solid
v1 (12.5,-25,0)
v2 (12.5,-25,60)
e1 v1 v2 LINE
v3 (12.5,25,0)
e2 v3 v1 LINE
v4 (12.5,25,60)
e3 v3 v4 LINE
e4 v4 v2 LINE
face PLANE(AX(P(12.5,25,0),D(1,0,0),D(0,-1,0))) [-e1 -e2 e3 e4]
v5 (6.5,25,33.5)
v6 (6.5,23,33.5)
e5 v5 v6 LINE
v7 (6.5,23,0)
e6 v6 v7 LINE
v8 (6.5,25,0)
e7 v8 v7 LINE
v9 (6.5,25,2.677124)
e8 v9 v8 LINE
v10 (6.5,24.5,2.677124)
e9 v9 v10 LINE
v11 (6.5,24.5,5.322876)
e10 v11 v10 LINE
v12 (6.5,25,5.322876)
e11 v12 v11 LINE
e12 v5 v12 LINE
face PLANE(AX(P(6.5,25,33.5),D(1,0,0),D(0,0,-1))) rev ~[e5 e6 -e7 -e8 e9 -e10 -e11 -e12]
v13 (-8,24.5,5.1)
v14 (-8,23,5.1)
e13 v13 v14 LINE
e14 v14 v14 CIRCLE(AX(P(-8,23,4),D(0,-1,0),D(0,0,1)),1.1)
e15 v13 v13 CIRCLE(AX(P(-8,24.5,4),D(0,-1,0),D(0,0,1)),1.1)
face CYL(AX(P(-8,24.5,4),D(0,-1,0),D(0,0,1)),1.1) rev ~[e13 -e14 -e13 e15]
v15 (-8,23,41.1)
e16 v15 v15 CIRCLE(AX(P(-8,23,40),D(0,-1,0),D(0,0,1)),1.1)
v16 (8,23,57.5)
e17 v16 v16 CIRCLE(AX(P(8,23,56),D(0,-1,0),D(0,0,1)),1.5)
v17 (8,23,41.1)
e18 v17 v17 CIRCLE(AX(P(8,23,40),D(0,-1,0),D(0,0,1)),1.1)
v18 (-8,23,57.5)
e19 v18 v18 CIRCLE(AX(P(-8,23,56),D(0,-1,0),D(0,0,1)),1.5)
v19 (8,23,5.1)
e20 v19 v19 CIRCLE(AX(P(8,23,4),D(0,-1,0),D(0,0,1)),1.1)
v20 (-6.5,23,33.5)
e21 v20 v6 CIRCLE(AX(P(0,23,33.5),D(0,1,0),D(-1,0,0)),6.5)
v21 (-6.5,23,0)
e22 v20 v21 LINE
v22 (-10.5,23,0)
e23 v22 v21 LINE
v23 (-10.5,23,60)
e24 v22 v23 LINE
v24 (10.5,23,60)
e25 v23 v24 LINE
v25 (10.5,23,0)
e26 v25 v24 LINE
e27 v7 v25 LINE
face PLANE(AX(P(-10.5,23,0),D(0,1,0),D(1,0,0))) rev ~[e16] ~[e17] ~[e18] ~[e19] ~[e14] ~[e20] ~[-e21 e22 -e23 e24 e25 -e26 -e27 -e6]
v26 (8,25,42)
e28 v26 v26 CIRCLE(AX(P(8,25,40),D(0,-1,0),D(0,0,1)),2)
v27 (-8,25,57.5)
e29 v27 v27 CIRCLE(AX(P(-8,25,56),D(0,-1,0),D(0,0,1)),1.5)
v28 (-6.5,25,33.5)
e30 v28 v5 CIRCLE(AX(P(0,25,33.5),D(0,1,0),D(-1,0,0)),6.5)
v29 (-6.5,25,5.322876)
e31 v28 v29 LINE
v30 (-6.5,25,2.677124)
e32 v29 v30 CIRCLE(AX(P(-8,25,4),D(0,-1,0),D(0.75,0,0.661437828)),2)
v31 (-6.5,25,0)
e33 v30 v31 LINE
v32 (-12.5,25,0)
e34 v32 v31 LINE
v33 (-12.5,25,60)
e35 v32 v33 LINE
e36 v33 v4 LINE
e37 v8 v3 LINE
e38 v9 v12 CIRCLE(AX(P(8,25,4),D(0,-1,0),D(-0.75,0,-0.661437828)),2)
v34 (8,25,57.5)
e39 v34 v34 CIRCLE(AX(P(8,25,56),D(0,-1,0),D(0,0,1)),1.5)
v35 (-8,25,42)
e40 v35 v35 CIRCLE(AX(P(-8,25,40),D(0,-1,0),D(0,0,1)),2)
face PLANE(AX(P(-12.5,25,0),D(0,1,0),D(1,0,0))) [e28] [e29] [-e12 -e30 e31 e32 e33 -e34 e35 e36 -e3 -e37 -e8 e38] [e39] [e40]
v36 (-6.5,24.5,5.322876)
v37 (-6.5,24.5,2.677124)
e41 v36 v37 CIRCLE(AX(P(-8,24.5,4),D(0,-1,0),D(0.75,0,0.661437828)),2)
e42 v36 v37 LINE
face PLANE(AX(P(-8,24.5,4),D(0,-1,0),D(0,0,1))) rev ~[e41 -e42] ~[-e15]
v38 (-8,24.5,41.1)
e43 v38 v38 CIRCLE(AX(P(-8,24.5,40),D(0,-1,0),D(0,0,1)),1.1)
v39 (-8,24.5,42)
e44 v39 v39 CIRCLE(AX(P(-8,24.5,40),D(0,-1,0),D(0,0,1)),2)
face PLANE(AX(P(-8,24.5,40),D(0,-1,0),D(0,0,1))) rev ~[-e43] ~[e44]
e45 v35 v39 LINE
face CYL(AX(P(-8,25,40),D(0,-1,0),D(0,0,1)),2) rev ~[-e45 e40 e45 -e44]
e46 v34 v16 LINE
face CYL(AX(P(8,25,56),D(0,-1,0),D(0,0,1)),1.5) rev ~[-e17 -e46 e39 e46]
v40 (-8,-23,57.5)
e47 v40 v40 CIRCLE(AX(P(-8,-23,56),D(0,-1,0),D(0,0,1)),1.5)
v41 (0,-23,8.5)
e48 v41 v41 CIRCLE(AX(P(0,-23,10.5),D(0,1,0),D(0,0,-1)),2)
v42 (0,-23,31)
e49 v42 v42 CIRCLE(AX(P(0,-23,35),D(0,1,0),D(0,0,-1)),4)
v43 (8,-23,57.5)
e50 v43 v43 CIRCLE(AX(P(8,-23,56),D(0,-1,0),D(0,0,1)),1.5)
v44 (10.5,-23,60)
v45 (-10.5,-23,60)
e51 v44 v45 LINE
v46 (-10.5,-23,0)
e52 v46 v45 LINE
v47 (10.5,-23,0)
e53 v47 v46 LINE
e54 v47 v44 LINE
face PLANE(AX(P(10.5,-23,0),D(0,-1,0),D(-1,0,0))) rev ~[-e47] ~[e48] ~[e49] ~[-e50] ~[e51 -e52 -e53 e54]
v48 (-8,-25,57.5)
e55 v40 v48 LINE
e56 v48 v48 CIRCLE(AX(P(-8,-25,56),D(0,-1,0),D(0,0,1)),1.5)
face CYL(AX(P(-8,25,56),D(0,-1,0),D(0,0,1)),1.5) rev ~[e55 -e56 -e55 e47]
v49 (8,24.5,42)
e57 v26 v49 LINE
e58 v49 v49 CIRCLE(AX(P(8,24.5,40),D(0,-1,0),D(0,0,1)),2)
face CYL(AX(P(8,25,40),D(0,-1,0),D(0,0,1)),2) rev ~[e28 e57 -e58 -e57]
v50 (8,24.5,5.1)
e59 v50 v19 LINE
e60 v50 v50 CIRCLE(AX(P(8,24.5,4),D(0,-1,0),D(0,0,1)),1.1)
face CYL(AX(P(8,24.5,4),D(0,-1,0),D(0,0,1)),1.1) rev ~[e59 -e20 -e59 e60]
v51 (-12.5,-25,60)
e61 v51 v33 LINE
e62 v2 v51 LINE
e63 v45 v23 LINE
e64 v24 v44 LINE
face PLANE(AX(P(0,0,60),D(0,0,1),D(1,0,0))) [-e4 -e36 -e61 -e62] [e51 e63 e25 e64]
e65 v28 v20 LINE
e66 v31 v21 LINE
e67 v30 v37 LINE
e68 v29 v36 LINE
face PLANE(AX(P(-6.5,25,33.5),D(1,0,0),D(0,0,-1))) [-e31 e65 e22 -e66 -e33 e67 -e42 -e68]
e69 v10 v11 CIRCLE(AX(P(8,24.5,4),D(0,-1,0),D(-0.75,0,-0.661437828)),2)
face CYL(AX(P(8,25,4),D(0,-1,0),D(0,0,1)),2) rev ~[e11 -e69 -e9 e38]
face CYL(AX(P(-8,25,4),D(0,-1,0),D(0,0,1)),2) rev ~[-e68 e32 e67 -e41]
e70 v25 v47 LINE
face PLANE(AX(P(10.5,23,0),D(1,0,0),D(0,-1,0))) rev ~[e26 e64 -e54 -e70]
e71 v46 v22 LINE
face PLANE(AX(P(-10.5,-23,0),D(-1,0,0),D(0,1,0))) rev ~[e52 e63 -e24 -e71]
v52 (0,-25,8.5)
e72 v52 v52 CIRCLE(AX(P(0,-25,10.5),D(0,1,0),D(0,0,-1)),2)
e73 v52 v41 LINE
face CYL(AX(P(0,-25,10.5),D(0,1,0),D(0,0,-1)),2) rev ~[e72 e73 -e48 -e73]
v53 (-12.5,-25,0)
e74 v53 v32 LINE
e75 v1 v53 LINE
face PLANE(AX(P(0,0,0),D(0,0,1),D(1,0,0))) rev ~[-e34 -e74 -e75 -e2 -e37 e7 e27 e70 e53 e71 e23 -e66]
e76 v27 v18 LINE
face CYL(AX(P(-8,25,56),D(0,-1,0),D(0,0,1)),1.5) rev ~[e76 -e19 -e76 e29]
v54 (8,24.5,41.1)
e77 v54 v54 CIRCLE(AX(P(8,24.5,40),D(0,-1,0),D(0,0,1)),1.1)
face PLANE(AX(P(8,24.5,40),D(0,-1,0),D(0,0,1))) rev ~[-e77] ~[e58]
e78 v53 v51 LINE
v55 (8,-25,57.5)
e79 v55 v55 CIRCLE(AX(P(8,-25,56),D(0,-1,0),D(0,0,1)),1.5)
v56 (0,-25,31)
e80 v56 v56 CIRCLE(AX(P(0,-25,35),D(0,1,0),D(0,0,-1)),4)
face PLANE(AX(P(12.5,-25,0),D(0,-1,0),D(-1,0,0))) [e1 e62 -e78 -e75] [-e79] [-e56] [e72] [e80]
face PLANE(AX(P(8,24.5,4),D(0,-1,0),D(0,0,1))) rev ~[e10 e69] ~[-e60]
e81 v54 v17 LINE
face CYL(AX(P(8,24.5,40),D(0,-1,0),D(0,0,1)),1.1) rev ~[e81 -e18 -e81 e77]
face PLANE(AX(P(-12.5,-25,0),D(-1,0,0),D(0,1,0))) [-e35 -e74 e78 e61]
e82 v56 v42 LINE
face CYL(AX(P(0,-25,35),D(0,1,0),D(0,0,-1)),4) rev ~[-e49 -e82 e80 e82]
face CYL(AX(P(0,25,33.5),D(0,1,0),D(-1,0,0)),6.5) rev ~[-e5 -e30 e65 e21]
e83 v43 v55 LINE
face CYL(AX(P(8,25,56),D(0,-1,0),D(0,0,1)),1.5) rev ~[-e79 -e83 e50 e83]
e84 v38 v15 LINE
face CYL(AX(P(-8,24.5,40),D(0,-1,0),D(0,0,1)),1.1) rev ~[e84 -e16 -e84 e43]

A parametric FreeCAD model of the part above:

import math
import FreeCAD as App
import Part
import Sketcher

V = App.Vector

doc = App.newDocument("Part")
body = doc.addObject("PartDesign::Body", "Body")

sketch1 = body.newObject("Sketcher::SketchObject", "Sketch")
sketch1.AttachmentSupport = (doc.getObject("XY_Plane"), [""])
sketch1.MapMode = "FlatFace"
sketch1.addGeometry(Part.LineSegment(V(12, 25, 0), V(-12, 25, 0)), False)
sketch1.addGeometry(Part.LineSegment(V(-12, 25, 0), V(-12, -25, 0)), False)
sketch1.addGeometry(Part.LineSegment(V(-12, -25, 0), V(12, -25, 0)), False)
sketch1.addGeometry(Part.LineSegment(V(12, -25, 0), V(12, 25, 0)), False)
sketch1.addGeometry(Part.LineSegment(V(-10, -23, 0), V(-10, 23, 0)), False)
sketch1.addGeometry(Part.LineSegment(V(-10, 23, 0), V(10, 23, 0)), False)
sketch1.addGeometry(Part.LineSegment(V(10, 23, 0), V(10, -23, 0)), False)
sketch1.addGeometry(Part.LineSegment(V(10, -23, 0), V(-10, -23, 0)), False)
sketch1.addConstraint(Sketcher.Constraint("Coincident", 0, 2, 1, 1))
sketch1.addConstraint(Sketcher.Constraint("Coincident", 1, 2, 2, 1))
sketch1.addConstraint(Sketcher.Constraint("Coincident", 2, 2, 3, 1))
sketch1.addConstraint(Sketcher.Constraint("Coincident", 3, 2, 0, 1))
sketch1.addConstraint(Sketcher.Constraint("Coincident", 4, 2, 5, 1))
sketch1.addConstraint(Sketcher.Constraint("Coincident", 5, 2, 6, 1))
sketch1.addConstraint(Sketcher.Constraint("Coincident", 6, 2, 7, 1))
sketch1.addConstraint(Sketcher.Constraint("Coincident", 7, 2, 4, 1))
sketch1.addConstraint(Sketcher.Constraint("Horizontal", 0))
sketch1.addConstraint(Sketcher.Constraint("Vertical", 1))
sketch1.addConstraint(Sketcher.Constraint("Horizontal", 2))
sketch1.addConstraint(Sketcher.Constraint("Vertical", 3))
sketch1.addConstraint(Sketcher.Constraint("Vertical", 4))
sketch1.addConstraint(Sketcher.Constraint("Horizontal", 5))
sketch1.addConstraint(Sketcher.Constraint("Vertical", 6))
sketch1.addConstraint(Sketcher.Constraint("Horizontal", 7))
sketch1.addConstraint(Sketcher.Constraint("Symmetric", 0, 2, 2, 2, -1, 1))
sketch1.addConstraint(Sketcher.Constraint("Symmetric", 4, 2, 6, 2, -1, 1))
sketch1.addConstraint(Sketcher.Constraint("DistanceX", 0, 2, 0, 1, 25.0))
sketch1.addConstraint(Sketcher.Constraint("DistanceX", 5, 1, 5, 2, 21.0))
sketch1.addConstraint(Sketcher.Constraint("DistanceY", 1, 2, 1, 1, 50.0))
sketch1.addConstraint(Sketcher.Constraint("DistanceY", 4, 1, 4, 2, 46.0))
pad1 = body.newObject("PartDesign::Pad", "Pad")
pad1.Profile = sketch1
pad1.Length = 60

sketch2 = body.newObject("Sketcher::SketchObject", "Sketch001")
sketch2.AttachmentSupport = (doc.getObject("XZ_Plane"), [""])
sketch2.MapMode = "FlatFace"
sketch2.AttachmentOffset = App.Placement(V(0, 0, -25), App.Rotation())
sketch2.addGeometry(Part.LineSegment(V(6, 0, 0), V(-6, 0, 0)), False)
sketch2.addGeometry(Part.LineSegment(V(-6, 0, 0), V(-6, 34, 0)), False)
sketch2.addGeometry(Part.ArcOfCircle(Part.Circle(V(0, 34, 0), V(0, 0, 1), 6), math.radians(0), math.radians(180)), False)
sketch2.addGeometry(Part.LineSegment(V(6, 34, 0), V(6, 0, 0)), False)
sketch2.addConstraint(Sketcher.Constraint("Coincident", 0, 2, 1, 1))
sketch2.addConstraint(Sketcher.Constraint("Tangent", 1, 2, 2, 2))
sketch2.addConstraint(Sketcher.Constraint("Tangent", 2, 1, 3, 1))
sketch2.addConstraint(Sketcher.Constraint("Coincident", 3, 2, 0, 1))
sketch2.addConstraint(Sketcher.Constraint("Horizontal", 0))
sketch2.addConstraint(Sketcher.Constraint("Vertical", 1))
sketch2.addConstraint(Sketcher.Constraint("Vertical", 3))
sketch2.addConstraint(Sketcher.Constraint("Symmetric", 0, 2, 3, 2, -1, 1))
sketch2.addConstraint(Sketcher.Constraint("Radius", 2, 6.5))
sketch2.addConstraint(Sketcher.Constraint("DistanceY", 1, 1, 1, 2, 33.5))
pocket1 = body.newObject("PartDesign::Pocket", "Pocket")
pocket1.Profile = sketch2
pocket1.Length = 2
pocket1.Reversed = True

sketch3 = body.newObject("Sketcher::SketchObject", "Sketch002")
sketch3.AttachmentSupport = (doc.getObject("XZ_Plane"), [""])
sketch3.MapMode = "FlatFace"
sketch3.AttachmentOffset = App.Placement(V(0, 0, -25), App.Rotation())
sketch3.addGeometry(Part.Circle(V(-8, 4, 0), V(0, 0, 1), 1.1), False)
sketch3.addGeometry(Part.Circle(V(8, 4, 0), V(0, 0, 1), 1.1), False)
sketch3.addGeometry(Part.Circle(V(8, 40, 0), V(0, 0, 1), 1.1), False)
sketch3.addGeometry(Part.Circle(V(-8, 40, 0), V(0, 0, 1), 1.1), False)
sketch3.addConstraint(Sketcher.Constraint("Equal", 0, 1))
sketch3.addConstraint(Sketcher.Constraint("Equal", 1, 2))
sketch3.addConstraint(Sketcher.Constraint("Equal", 2, 3))
sketch3.addConstraint(Sketcher.Constraint("Symmetric", 0, 3, 1, 3, -2))
sketch3.addConstraint(Sketcher.Constraint("Symmetric", 2, 3, 3, 3, -2))
sketch3.addConstraint(Sketcher.Constraint("Vertical", 1, 3, 2, 3))
sketch3.addConstraint(Sketcher.Constraint("Diameter", 0, 2.2))
sketch3.addConstraint(Sketcher.Constraint("DistanceX", 0, 3, -1, 1, 8.0))
sketch3.addConstraint(Sketcher.Constraint("DistanceY", -1, 1, 0, 3, 4.0))
sketch3.addConstraint(Sketcher.Constraint("DistanceY", -1, 1, 2, 3, 40.0))
doc.recompute()
hole = body.newObject("PartDesign::Hole", "Hole")
hole.Profile = sketch3
hole.ThreadType = "None"
hole.Diameter = 2.2
hole.DepthType = "Dimension"
hole.Depth = 2
hole.DrillPoint = "Angled"
hole.DrillPointAngle = 118
hole.HoleCutType = "Counterbore"
hole.HoleCutDiameter = 4
hole.HoleCutDepth = 0.5
hole.Reversed = True

sketch4 = body.newObject("Sketcher::SketchObject", "Sketch003")
sketch4.AttachmentSupport = (doc.getObject("XZ_Plane"), [""])
sketch4.MapMode = "FlatFace"
sketch4.AttachmentOffset = App.Placement(V(0, 0, 25), App.Rotation())
sketch4.addGeometry(Part.Circle(V(0, 10.5, 0), V(0, 0, 1), 2), False)
sketch4.addConstraint(Sketcher.Constraint("PointOnObject", 0, 3, -2))
sketch4.addConstraint(Sketcher.Constraint("Diameter", 0, 4.0))
sketch4.addConstraint(Sketcher.Constraint("DistanceY", -1, 1, 0, 3, 10.5))
doc.recompute()
hole2 = body.newObject("PartDesign::Hole", "Hole001")
hole2.Profile = sketch4
hole2.ThreadType = "None"
hole2.Diameter = 4
hole2.DepthType = "ThroughAll"

sketch5 = body.newObject("Sketcher::SketchObject", "Sketch004")
sketch5.AttachmentSupport = (doc.getObject("XZ_Plane"), [""])
sketch5.MapMode = "FlatFace"
sketch5.AttachmentOffset = App.Placement(V(0, 0, -25), App.Rotation())
sketch5.addGeometry(Part.Circle(V(-8, 56, 0), V(0, 0, 1), 1.5), False)
sketch5.addGeometry(Part.Circle(V(8, 56, 0), V(0, 0, 1), 1.5), False)
sketch5.addConstraint(Sketcher.Constraint("Equal", 0, 1))
sketch5.addConstraint(Sketcher.Constraint("Symmetric", 0, 3, 1, 3, -2))
sketch5.addConstraint(Sketcher.Constraint("Diameter", 0, 3.0))
sketch5.addConstraint(Sketcher.Constraint("DistanceX", 0, 3, -1, 1, 8.0))
sketch5.addConstraint(Sketcher.Constraint("DistanceY", -1, 1, 0, 3, 56.0))
doc.recompute()
hole3 = body.newObject("PartDesign::Hole", "Hole002")
hole3.Profile = sketch5
hole3.ThreadType = "None"
hole3.Diameter = 3
hole3.DepthType = "ThroughAll"
hole3.Reversed = True

sketch6 = body.newObject("Sketcher::SketchObject", "Sketch005")
sketch6.AttachmentSupport = (doc.getObject("XZ_Plane"), [""])
sketch6.MapMode = "FlatFace"
sketch6.AttachmentOffset = App.Placement(V(0, 0, 25), App.Rotation())
sketch6.addGeometry(Part.Circle(V(0, 35, 0), V(0, 0, 1), 4), False)
sketch6.addConstraint(Sketcher.Constraint("PointOnObject", 0, 3, -2))
sketch6.addConstraint(Sketcher.Constraint("Diameter", 0, 8.0))
sketch6.addConstraint(Sketcher.Constraint("DistanceY", -1, 1, 0, 3, 35.0))
doc.recompute()
hole4 = body.newObject("PartDesign::Hole", "Hole003")
hole4.Profile = sketch6
hole4.ThreadType = "None"
hole4.Diameter = 8
hole4.DepthType = "ThroughAll"

doc.recompute()
